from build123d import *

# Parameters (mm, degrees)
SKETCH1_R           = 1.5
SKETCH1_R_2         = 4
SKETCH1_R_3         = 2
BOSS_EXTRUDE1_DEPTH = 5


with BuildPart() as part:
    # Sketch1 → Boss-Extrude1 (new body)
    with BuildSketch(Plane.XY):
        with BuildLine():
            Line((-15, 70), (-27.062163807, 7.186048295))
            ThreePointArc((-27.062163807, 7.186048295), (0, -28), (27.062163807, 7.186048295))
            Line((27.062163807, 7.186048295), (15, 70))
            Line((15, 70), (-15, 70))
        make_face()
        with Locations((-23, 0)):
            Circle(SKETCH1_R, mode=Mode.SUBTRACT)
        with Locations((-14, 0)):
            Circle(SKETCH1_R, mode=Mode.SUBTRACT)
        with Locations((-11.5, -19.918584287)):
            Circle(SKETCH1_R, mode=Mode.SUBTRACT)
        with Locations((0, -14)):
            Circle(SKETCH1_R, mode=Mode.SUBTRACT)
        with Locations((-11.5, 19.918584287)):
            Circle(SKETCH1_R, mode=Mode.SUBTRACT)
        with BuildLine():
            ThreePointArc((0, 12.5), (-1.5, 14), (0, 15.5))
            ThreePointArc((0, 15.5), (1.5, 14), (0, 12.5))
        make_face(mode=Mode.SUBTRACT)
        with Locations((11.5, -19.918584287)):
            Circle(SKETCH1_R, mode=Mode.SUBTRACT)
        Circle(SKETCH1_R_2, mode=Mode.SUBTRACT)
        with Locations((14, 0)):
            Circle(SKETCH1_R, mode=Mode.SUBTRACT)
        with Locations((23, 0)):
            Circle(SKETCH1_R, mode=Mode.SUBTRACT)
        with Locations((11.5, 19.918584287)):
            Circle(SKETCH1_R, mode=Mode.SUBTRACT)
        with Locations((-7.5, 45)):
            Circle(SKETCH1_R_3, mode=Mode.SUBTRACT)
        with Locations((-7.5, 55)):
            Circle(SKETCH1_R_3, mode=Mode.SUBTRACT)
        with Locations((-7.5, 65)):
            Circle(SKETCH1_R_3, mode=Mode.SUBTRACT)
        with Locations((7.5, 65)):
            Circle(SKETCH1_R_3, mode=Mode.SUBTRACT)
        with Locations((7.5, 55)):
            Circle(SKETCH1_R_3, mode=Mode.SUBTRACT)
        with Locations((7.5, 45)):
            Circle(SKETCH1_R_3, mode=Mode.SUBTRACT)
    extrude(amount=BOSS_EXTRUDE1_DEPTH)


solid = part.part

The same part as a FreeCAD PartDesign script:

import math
import FreeCAD as App
import Part
import Sketcher
from FreeCAD import Vector
Q = App.Units.Quantity

doc = App.newDocument("Part")
body = doc.addObject("PartDesign::Body", "Body")

sketch1 = body.newObject("Sketcher::SketchObject", "Sketch")
sketch1.AttachmentSupport = (doc.getObject("XY_Plane"), [""])
sketch1.MapMode = "FlatFace"
sketch1.addGeometry([
    Part.LineSegment(Vector(-15, 70, 0), Vector(-27.1, 7.2, 0)),
    Part.ArcOfCircle(Part.Circle(Vector(0, 0, 0), Vector(0, 0, 1), 28), math.radians(165), math.radians(375)),
    Part.LineSegment(Vector(27.1, 7.2, 0), Vector(15, 70, 0)),
    Part.LineSegment(Vector(15, 70, 0), Vector(-15, 70, 0)),
    Part.Circle(Vector(-23, 0, 0), Vector(0, 0, 1), 1.5),
    Part.Circle(Vector(-14, 0, 0), Vector(0, 0, 1), 1.5),
    Part.Circle(Vector(-11.5, -19.9, 0), Vector(0, 0, 1), 1.5),
    Part.Circle(Vector(0, -14, 0), Vector(0, 0, 1), 1.5),
    Part.Circle(Vector(0, 0, 0), Vector(0, 0, 1), 4),
    Part.Circle(Vector(-11.5, 19.9, 0), Vector(0, 0, 1), 1.5),
    Part.Circle(Vector(0, 14, 0), Vector(0, 0, 1), 1.5),
    Part.Circle(Vector(11.5, -19.9, 0), Vector(0, 0, 1), 1.5),
    Part.Circle(Vector(14, 0, 0), Vector(0, 0, 1), 1.5),
    Part.Circle(Vector(23, 0, 0), Vector(0, 0, 1), 1.5),
    Part.Circle(Vector(11.5, 19.9, 0), Vector(0, 0, 1), 1.5),
    Part.Circle(Vector(-7.5, 45, 0), Vector(0, 0, 1), 2),
    Part.Circle(Vector(-7.5, 55, 0), Vector(0, 0, 1), 2),
    Part.Circle(Vector(-7.5, 65, 0), Vector(0, 0, 1), 2),
    Part.Circle(Vector(7.5, 45, 0), Vector(0, 0, 1), 2),
    Part.Circle(Vector(7.5, 55, 0), Vector(0, 0, 1), 2),
    Part.Circle(Vector(7.5, 65, 0), Vector(0, 0, 1), 2),
], False)
sketch1.addConstraint([
    Sketcher.Constraint("Coincident", 0, 2, 1, 1),
    Sketcher.Constraint("Coincident", 1, 2, 2, 1),
    Sketcher.Constraint("Coincident", 2, 2, 3, 1),
    Sketcher.Constraint("Coincident", 3, 2, 0, 1),
    Sketcher.Constraint("Horizontal", 3),
    Sketcher.Constraint("Coincident", 1, 3, -1, 1),
    Sketcher.Constraint("Coincident", 8, 3, -1, 1),
    Sketcher.Constraint("Equal", 4, 5),
    Sketcher.Constraint("Equal", 5, 6),
    Sketcher.Constraint("Equal", 6, 7),
    Sketcher.Constraint("Equal", 7, 9),
    Sketcher.Constraint("Equal", 9, 10),
    Sketcher.Constraint("Equal", 10, 11),
    Sketcher.Constraint("Equal", 11, 12),
    Sketcher.Constraint("Equal", 12, 13),
    Sketcher.Constraint("Equal", 13, 14),
    Sketcher.Constraint("Equal", 15, 16),
    Sketcher.Constraint("Equal", 16, 17),
    Sketcher.Constraint("Equal", 17, 18),
    Sketcher.Constraint("Equal", 18, 19),
    Sketcher.Constraint("Equal", 19, 20),
    Sketcher.Constraint("Symmetric", 7, 3, 10, 3, -1, 1),
    Sketcher.Constraint("Symmetric", 9, 3, 11, 3, -1, 1),
    Sketcher.Constraint("Symmetric", 5, 3, 12, 3, -1, 1),
    Sketcher.Constraint("Symmetric", 4, 3, 13, 3, -1, 1),
    Sketcher.Constraint("Symmetric", 6, 3, 14, 3, -1, 1),
    Sketcher.Constraint("Symmetric", 6, 3, 11, 3, -2),
    Sketcher.Constraint("Symmetric", 15, 3, 18, 3, -2),
    Sketcher.Constraint("Symmetric", 16, 3, 19, 3, -2),
    Sketcher.Constraint("Symmetric", 17, 3, 20, 3, -2),
    Sketcher.Constraint("PointOnObject", 4, 3, -1),
    Sketcher.Constraint("PointOnObject", 5, 3, -1),
    Sketcher.Constraint("PointOnObject", 7, 3, -2),
    Sketcher.Constraint("Horizontal", 0, 2, 1, 2),
    Sketcher.Constraint("Vertical", 15, 3, 16, 3),
    Sketcher.Constraint("Vertical", 16, 3, 17, 3),
    Sketcher.Constraint("Equal", 0, 2),
    Sketcher.Constraint("Diameter", 4, Q("3 mm")),
    Sketcher.Constraint("Diameter", 8, Q("8 mm")),
    Sketcher.Constraint("Diameter", 15, Q("4 mm")),
    Sketcher.Constraint("Radius", 1, Q("28 mm")),
    Sketcher.Constraint("DistanceX", 3, 2, 3, 1, Q("30 mm")),
    Sketcher.Constraint("DistanceX", 4, 3, -1, 1, Q("23 mm")),
    Sketcher.Constraint("DistanceX", 5, 3, -1, 1, Q("14 mm")),
    Sketcher.Constraint("DistanceY", 7, 3, -1, 1, Q("14 mm")),
    Sketcher.Constraint("DistanceY", -1, 1, 15, 3, Q("45 mm")),
    Sketcher.Constraint("DistanceY", -1, 1, 16, 3, Q("55 mm")),
    Sketcher.Constraint("DistanceY", -1, 1, 17, 3, Q("65 mm")),
    Sketcher.Constraint("DistanceY", -1, 1, 2, 2, Q("70 mm")),
    Sketcher.Constraint("DistanceX", 6, 3, 11, 3, Q("23 mm")),
    Sketcher.Constraint("DistanceX", 9, 3, 15, 3, Q("4 mm")),
    Sketcher.Constraint("DistanceY", -1, 1, 0, 2, Q("7.186048 mm")),
    Sketcher.Constraint("DistanceY", 6, 3, -1, 1, Q("19.918584 mm")),
])
pad1 = body.newObject("PartDesign::Pad", "Pad")
pad1.Profile = sketch1
pad1.Length = 5

doc.recompute()
